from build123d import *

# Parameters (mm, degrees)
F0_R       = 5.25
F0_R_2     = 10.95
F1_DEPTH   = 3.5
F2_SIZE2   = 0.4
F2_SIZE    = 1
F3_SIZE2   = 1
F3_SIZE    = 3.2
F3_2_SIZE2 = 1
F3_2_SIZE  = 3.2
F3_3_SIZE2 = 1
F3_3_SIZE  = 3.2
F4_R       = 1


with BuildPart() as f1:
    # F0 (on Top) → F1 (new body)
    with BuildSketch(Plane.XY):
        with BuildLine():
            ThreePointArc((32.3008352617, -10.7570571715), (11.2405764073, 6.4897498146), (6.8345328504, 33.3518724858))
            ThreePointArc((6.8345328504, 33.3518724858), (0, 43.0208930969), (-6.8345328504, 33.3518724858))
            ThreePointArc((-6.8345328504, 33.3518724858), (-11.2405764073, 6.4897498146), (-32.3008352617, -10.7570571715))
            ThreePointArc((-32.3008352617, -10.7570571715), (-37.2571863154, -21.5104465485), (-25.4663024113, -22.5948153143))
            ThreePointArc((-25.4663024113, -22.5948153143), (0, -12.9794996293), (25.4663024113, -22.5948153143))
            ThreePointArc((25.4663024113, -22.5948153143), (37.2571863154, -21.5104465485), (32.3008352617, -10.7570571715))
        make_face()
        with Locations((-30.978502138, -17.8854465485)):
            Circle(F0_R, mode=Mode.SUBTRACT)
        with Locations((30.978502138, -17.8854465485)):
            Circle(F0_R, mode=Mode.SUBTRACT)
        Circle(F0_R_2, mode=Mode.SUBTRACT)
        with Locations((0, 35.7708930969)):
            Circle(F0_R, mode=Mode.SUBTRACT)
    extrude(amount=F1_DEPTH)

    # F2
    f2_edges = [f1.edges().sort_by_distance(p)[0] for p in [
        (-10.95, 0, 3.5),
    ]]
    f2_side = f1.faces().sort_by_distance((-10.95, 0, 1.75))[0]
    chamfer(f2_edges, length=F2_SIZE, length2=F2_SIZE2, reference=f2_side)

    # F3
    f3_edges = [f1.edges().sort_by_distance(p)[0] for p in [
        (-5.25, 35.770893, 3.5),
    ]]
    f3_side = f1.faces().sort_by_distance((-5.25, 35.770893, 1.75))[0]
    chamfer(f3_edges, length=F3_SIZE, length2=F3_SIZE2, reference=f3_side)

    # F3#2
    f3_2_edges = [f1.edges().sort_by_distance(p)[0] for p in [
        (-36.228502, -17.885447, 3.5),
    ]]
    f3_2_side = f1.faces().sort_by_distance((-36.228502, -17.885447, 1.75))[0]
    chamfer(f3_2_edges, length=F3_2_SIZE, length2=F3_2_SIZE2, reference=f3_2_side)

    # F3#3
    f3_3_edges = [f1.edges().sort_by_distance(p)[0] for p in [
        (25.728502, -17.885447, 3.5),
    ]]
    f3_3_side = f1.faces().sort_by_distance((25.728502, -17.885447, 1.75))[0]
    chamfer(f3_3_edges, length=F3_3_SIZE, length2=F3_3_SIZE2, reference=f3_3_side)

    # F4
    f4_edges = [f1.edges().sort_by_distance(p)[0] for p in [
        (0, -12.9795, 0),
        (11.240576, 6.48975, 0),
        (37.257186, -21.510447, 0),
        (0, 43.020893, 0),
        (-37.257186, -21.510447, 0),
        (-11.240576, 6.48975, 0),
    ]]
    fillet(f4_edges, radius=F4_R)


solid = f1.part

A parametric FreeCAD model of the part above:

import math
import FreeCAD as App
import Part
import Sketcher
from FreeCAD import Vector


def edges_at(feature, points):
    """Names of the edges that pass closest to the given points."""
    edges = feature.Shape.Edges
    near = lambda p: min(range(len(edges)), key=lambda i: edges[i].distToShape(Part.Vertex(*p))[0])
    return sorted({f"Edge{near(p) + 1}" for p in points})

doc = App.newDocument("Part")
params = doc.addObject("Spreadsheet::Sheet", "Params")
for row, (alias, value) in enumerate([
    ("sketch1_diameter", "10.5 mm"),
    ("sketch1_diameter2", "21.9 mm"),
    ("sketch1_radius", "7.25 mm"),
    ("pad1_length", "3.5 mm"),
    ("chamfer_size", "1 mm"),
    ("chamfer_size2", "0.4 mm"),
    ("chamfer2_size", "3.2 mm"),
    ("chamfer2_size2", "1 mm"),
    ("chamfer3_size", "3.2 mm"),
    ("chamfer3_size2", "1 mm"),
    ("chamfer4_size", "3.2 mm"),
    ("chamfer4_size2", "1 mm"),
    ("fillet_radius", "1 mm"),
], start=1):
    params.set(f"A{row}", alias)
    params.set(f"B{row}", "=" + value)
    params.setAlias(f"B{row}", alias)

body = doc.addObject("PartDesign::Body", "Body")

# Sketch on XY plane
sketch1 = body.newObject("Sketcher::SketchObject", "Sketch")
sketch1.AttachmentSupport = (doc.getObject("XY_Plane"), [""])
sketch1.MapMode = "FlatFace"
sketch1.addGeometry([
    Part.ArcOfCircle(Part.Circle(Vector(45, 26, 0), Vector(0, 0, 1), 39), math.radians(169), math.radians(251)),  # 0
    Part.ArcOfCircle(Part.Circle(Vector(0, 36, 0), Vector(0, 0, 1), 7), math.radians(-19), math.radians(199)),  # 1
    Part.ArcOfCircle(Part.Circle(Vector(-45, 26, 0), Vector(0, 0, 1), 39), math.radians(-71), math.radians(11)),  # 2
    Part.ArcOfCircle(Part.Circle(Vector(-31, -18, 0), Vector(0, 0, 1), 7), math.radians(101), math.radians(319)),  # 3
    Part.ArcOfCircle(Part.Circle(Vector(0, -52, 0), Vector(0, 0, 1), 39), math.radians(49), math.radians(131)),  # 4
    Part.ArcOfCircle(Part.Circle(Vector(31, -18, 0), Vector(0, 0, 1), 7), math.radians(-139), math.radians(79)),  # 5
    Part.Circle(Vector(-31, -18, 0), Vector(0, 0, 1), 5),  # 6
    Part.Circle(Vector(31, -18, 0), Vector(0, 0, 1), 5),  # 7
    Part.Circle(Vector(0, 0, 0), Vector(0, 0, 1), 11),  # 8
    Part.Circle(Vector(0, 36, 0), Vector(0, 0, 1), 5),  # 9
], False)
sketch1.addConstraint([
    Sketcher.Constraint("Coincident", 0, 1, 1, 1),
    Sketcher.Constraint("Coincident", 1, 2, 2, 2),
    Sketcher.Constraint("Coincident", 2, 1, 3, 1),
    Sketcher.Constraint("Coincident", 3, 2, 4, 2),
    Sketcher.Constraint("Coincident", 4, 1, 5, 1),
    Sketcher.Constraint("Coincident", 5, 2, 0, 2),
    Sketcher.Constraint("Coincident", 8, 3, -1, 1),
    Sketcher.Constraint("Coincident", 6, 3, 3, 3),
    Sketcher.Constraint("Coincident", 7, 3, 5, 3),
    Sketcher.Constraint("Coincident", 9, 3, 1, 3),
    Sketcher.Constraint("Equal", 0, 2),
    Sketcher.Constraint("Equal", 1, 3),
    Sketcher.Constraint("Equal", 2, 4),
    Sketcher.Constraint("Equal", 3, 5),
    Sketcher.Constraint("Equal", 6, 7),
    Sketcher.Constraint("Equal", 7, 9),
    Sketcher.Constraint("Symmetric", 0, 3, 2, 3, -2),
    Sketcher.Constraint("Symmetric", 3, 3, 5, 3, -2),
    Sketcher.Constraint("PointOnObject", 1, 3, -2),
    Sketcher.Constraint("PointOnObject", 4, 3, -2),
    Sketcher.Constraint("Diameter", 6, 10.5),
    Sketcher.Constraint("Diameter", 8, 21.9),
    Sketcher.Constraint("Radius", 1, 7.25),
    Sketcher.Constraint("Radius", 0, 38.531593),
    Sketcher.Constraint("DistanceX", 3, 3, 3, 2, 5.5122),
    Sketcher.Constraint("DistanceX", 2, 3, 0, 3, 89.219829),
    Sketcher.Constraint("DistanceY", 3, 3, 1, 3, 53.65634),
    Sketcher.Constraint("DistanceY", 4, 3, 0, 3, 77.266638),
    Sketcher.Constraint("DistanceY", 0, 1, 1, 3, 2.419021),
    Sketcher.Constraint("DistanceY", -1, 1, 0, 3, 25.755546),
])
sketch1.setExpression("Constraints[20]", "Params.sketch1_diameter")
sketch1.setExpression("Constraints[21]", "Params.sketch1_diameter2")
sketch1.setExpression("Constraints[22]", "Params.sketch1_radius")
pad1 = body.newObject("PartDesign::Pad", "Pad")
pad1.Profile = sketch1
pad1.setExpression("Length", "Params.pad1_length")
doc.recompute()

chamfer = body.newObject("PartDesign::Chamfer", "Chamfer")
chamfer.Base = (pad1, edges_at(pad1, [(-10.95, 0, 3.5)]))
chamfer.ChamferType = "Two distances"
chamfer.setExpression("Size", "Params.chamfer_size")
chamfer.setExpression("Size2", "Params.chamfer_size2")
doc.recompute()

chamfer2 = body.newObject("PartDesign::Chamfer", "Chamfer001")
chamfer2.Base = (chamfer, edges_at(chamfer, [(-5.25, 35.771, 3.5)]))
chamfer2.ChamferType = "Two distances"
chamfer2.setExpression("Size", "Params.chamfer2_size")
chamfer2.setExpression("Size2", "Params.chamfer2_size2")
chamfer2.FlipDirection = True
doc.recompute()

chamfer3 = body.newObject("PartDesign::Chamfer", "Chamfer002")
chamfer3.Base = (chamfer2, edges_at(chamfer2, [(-36.229, -17.885, 3.5)]))
chamfer3.ChamferType = "Two distances"
chamfer3.setExpression("Size", "Params.chamfer3_size")
chamfer3.setExpression("Size2", "Params.chamfer3_size2")
chamfer3.FlipDirection = True
doc.recompute()

chamfer4 = body.newObject("PartDesign::Chamfer", "Chamfer003")
chamfer4.Base = (chamfer3, edges_at(chamfer3, [(25.729, -17.885, 3.5)]))
chamfer4.ChamferType = "Two distances"
chamfer4.setExpression("Size", "Params.chamfer4_size")
chamfer4.setExpression("Size2", "Params.chamfer4_size2")
chamfer4.FlipDirection = True
doc.recompute()

fillet = body.newObject("PartDesign::Fillet", "Fillet")
fillet.Base = (chamfer4, edges_at(chamfer4, [
    (0, -12.979, 0),
    (11.241, 6.49, 0),
    (37.257, -21.51, 0),
    (0, 43.021, 0),
    (-37.257, -21.51, 0),
    (-11.241, 6.49, 0),
]))
fillet.setExpression("Radius", "Params.fillet_radius")

doc.recompute()
